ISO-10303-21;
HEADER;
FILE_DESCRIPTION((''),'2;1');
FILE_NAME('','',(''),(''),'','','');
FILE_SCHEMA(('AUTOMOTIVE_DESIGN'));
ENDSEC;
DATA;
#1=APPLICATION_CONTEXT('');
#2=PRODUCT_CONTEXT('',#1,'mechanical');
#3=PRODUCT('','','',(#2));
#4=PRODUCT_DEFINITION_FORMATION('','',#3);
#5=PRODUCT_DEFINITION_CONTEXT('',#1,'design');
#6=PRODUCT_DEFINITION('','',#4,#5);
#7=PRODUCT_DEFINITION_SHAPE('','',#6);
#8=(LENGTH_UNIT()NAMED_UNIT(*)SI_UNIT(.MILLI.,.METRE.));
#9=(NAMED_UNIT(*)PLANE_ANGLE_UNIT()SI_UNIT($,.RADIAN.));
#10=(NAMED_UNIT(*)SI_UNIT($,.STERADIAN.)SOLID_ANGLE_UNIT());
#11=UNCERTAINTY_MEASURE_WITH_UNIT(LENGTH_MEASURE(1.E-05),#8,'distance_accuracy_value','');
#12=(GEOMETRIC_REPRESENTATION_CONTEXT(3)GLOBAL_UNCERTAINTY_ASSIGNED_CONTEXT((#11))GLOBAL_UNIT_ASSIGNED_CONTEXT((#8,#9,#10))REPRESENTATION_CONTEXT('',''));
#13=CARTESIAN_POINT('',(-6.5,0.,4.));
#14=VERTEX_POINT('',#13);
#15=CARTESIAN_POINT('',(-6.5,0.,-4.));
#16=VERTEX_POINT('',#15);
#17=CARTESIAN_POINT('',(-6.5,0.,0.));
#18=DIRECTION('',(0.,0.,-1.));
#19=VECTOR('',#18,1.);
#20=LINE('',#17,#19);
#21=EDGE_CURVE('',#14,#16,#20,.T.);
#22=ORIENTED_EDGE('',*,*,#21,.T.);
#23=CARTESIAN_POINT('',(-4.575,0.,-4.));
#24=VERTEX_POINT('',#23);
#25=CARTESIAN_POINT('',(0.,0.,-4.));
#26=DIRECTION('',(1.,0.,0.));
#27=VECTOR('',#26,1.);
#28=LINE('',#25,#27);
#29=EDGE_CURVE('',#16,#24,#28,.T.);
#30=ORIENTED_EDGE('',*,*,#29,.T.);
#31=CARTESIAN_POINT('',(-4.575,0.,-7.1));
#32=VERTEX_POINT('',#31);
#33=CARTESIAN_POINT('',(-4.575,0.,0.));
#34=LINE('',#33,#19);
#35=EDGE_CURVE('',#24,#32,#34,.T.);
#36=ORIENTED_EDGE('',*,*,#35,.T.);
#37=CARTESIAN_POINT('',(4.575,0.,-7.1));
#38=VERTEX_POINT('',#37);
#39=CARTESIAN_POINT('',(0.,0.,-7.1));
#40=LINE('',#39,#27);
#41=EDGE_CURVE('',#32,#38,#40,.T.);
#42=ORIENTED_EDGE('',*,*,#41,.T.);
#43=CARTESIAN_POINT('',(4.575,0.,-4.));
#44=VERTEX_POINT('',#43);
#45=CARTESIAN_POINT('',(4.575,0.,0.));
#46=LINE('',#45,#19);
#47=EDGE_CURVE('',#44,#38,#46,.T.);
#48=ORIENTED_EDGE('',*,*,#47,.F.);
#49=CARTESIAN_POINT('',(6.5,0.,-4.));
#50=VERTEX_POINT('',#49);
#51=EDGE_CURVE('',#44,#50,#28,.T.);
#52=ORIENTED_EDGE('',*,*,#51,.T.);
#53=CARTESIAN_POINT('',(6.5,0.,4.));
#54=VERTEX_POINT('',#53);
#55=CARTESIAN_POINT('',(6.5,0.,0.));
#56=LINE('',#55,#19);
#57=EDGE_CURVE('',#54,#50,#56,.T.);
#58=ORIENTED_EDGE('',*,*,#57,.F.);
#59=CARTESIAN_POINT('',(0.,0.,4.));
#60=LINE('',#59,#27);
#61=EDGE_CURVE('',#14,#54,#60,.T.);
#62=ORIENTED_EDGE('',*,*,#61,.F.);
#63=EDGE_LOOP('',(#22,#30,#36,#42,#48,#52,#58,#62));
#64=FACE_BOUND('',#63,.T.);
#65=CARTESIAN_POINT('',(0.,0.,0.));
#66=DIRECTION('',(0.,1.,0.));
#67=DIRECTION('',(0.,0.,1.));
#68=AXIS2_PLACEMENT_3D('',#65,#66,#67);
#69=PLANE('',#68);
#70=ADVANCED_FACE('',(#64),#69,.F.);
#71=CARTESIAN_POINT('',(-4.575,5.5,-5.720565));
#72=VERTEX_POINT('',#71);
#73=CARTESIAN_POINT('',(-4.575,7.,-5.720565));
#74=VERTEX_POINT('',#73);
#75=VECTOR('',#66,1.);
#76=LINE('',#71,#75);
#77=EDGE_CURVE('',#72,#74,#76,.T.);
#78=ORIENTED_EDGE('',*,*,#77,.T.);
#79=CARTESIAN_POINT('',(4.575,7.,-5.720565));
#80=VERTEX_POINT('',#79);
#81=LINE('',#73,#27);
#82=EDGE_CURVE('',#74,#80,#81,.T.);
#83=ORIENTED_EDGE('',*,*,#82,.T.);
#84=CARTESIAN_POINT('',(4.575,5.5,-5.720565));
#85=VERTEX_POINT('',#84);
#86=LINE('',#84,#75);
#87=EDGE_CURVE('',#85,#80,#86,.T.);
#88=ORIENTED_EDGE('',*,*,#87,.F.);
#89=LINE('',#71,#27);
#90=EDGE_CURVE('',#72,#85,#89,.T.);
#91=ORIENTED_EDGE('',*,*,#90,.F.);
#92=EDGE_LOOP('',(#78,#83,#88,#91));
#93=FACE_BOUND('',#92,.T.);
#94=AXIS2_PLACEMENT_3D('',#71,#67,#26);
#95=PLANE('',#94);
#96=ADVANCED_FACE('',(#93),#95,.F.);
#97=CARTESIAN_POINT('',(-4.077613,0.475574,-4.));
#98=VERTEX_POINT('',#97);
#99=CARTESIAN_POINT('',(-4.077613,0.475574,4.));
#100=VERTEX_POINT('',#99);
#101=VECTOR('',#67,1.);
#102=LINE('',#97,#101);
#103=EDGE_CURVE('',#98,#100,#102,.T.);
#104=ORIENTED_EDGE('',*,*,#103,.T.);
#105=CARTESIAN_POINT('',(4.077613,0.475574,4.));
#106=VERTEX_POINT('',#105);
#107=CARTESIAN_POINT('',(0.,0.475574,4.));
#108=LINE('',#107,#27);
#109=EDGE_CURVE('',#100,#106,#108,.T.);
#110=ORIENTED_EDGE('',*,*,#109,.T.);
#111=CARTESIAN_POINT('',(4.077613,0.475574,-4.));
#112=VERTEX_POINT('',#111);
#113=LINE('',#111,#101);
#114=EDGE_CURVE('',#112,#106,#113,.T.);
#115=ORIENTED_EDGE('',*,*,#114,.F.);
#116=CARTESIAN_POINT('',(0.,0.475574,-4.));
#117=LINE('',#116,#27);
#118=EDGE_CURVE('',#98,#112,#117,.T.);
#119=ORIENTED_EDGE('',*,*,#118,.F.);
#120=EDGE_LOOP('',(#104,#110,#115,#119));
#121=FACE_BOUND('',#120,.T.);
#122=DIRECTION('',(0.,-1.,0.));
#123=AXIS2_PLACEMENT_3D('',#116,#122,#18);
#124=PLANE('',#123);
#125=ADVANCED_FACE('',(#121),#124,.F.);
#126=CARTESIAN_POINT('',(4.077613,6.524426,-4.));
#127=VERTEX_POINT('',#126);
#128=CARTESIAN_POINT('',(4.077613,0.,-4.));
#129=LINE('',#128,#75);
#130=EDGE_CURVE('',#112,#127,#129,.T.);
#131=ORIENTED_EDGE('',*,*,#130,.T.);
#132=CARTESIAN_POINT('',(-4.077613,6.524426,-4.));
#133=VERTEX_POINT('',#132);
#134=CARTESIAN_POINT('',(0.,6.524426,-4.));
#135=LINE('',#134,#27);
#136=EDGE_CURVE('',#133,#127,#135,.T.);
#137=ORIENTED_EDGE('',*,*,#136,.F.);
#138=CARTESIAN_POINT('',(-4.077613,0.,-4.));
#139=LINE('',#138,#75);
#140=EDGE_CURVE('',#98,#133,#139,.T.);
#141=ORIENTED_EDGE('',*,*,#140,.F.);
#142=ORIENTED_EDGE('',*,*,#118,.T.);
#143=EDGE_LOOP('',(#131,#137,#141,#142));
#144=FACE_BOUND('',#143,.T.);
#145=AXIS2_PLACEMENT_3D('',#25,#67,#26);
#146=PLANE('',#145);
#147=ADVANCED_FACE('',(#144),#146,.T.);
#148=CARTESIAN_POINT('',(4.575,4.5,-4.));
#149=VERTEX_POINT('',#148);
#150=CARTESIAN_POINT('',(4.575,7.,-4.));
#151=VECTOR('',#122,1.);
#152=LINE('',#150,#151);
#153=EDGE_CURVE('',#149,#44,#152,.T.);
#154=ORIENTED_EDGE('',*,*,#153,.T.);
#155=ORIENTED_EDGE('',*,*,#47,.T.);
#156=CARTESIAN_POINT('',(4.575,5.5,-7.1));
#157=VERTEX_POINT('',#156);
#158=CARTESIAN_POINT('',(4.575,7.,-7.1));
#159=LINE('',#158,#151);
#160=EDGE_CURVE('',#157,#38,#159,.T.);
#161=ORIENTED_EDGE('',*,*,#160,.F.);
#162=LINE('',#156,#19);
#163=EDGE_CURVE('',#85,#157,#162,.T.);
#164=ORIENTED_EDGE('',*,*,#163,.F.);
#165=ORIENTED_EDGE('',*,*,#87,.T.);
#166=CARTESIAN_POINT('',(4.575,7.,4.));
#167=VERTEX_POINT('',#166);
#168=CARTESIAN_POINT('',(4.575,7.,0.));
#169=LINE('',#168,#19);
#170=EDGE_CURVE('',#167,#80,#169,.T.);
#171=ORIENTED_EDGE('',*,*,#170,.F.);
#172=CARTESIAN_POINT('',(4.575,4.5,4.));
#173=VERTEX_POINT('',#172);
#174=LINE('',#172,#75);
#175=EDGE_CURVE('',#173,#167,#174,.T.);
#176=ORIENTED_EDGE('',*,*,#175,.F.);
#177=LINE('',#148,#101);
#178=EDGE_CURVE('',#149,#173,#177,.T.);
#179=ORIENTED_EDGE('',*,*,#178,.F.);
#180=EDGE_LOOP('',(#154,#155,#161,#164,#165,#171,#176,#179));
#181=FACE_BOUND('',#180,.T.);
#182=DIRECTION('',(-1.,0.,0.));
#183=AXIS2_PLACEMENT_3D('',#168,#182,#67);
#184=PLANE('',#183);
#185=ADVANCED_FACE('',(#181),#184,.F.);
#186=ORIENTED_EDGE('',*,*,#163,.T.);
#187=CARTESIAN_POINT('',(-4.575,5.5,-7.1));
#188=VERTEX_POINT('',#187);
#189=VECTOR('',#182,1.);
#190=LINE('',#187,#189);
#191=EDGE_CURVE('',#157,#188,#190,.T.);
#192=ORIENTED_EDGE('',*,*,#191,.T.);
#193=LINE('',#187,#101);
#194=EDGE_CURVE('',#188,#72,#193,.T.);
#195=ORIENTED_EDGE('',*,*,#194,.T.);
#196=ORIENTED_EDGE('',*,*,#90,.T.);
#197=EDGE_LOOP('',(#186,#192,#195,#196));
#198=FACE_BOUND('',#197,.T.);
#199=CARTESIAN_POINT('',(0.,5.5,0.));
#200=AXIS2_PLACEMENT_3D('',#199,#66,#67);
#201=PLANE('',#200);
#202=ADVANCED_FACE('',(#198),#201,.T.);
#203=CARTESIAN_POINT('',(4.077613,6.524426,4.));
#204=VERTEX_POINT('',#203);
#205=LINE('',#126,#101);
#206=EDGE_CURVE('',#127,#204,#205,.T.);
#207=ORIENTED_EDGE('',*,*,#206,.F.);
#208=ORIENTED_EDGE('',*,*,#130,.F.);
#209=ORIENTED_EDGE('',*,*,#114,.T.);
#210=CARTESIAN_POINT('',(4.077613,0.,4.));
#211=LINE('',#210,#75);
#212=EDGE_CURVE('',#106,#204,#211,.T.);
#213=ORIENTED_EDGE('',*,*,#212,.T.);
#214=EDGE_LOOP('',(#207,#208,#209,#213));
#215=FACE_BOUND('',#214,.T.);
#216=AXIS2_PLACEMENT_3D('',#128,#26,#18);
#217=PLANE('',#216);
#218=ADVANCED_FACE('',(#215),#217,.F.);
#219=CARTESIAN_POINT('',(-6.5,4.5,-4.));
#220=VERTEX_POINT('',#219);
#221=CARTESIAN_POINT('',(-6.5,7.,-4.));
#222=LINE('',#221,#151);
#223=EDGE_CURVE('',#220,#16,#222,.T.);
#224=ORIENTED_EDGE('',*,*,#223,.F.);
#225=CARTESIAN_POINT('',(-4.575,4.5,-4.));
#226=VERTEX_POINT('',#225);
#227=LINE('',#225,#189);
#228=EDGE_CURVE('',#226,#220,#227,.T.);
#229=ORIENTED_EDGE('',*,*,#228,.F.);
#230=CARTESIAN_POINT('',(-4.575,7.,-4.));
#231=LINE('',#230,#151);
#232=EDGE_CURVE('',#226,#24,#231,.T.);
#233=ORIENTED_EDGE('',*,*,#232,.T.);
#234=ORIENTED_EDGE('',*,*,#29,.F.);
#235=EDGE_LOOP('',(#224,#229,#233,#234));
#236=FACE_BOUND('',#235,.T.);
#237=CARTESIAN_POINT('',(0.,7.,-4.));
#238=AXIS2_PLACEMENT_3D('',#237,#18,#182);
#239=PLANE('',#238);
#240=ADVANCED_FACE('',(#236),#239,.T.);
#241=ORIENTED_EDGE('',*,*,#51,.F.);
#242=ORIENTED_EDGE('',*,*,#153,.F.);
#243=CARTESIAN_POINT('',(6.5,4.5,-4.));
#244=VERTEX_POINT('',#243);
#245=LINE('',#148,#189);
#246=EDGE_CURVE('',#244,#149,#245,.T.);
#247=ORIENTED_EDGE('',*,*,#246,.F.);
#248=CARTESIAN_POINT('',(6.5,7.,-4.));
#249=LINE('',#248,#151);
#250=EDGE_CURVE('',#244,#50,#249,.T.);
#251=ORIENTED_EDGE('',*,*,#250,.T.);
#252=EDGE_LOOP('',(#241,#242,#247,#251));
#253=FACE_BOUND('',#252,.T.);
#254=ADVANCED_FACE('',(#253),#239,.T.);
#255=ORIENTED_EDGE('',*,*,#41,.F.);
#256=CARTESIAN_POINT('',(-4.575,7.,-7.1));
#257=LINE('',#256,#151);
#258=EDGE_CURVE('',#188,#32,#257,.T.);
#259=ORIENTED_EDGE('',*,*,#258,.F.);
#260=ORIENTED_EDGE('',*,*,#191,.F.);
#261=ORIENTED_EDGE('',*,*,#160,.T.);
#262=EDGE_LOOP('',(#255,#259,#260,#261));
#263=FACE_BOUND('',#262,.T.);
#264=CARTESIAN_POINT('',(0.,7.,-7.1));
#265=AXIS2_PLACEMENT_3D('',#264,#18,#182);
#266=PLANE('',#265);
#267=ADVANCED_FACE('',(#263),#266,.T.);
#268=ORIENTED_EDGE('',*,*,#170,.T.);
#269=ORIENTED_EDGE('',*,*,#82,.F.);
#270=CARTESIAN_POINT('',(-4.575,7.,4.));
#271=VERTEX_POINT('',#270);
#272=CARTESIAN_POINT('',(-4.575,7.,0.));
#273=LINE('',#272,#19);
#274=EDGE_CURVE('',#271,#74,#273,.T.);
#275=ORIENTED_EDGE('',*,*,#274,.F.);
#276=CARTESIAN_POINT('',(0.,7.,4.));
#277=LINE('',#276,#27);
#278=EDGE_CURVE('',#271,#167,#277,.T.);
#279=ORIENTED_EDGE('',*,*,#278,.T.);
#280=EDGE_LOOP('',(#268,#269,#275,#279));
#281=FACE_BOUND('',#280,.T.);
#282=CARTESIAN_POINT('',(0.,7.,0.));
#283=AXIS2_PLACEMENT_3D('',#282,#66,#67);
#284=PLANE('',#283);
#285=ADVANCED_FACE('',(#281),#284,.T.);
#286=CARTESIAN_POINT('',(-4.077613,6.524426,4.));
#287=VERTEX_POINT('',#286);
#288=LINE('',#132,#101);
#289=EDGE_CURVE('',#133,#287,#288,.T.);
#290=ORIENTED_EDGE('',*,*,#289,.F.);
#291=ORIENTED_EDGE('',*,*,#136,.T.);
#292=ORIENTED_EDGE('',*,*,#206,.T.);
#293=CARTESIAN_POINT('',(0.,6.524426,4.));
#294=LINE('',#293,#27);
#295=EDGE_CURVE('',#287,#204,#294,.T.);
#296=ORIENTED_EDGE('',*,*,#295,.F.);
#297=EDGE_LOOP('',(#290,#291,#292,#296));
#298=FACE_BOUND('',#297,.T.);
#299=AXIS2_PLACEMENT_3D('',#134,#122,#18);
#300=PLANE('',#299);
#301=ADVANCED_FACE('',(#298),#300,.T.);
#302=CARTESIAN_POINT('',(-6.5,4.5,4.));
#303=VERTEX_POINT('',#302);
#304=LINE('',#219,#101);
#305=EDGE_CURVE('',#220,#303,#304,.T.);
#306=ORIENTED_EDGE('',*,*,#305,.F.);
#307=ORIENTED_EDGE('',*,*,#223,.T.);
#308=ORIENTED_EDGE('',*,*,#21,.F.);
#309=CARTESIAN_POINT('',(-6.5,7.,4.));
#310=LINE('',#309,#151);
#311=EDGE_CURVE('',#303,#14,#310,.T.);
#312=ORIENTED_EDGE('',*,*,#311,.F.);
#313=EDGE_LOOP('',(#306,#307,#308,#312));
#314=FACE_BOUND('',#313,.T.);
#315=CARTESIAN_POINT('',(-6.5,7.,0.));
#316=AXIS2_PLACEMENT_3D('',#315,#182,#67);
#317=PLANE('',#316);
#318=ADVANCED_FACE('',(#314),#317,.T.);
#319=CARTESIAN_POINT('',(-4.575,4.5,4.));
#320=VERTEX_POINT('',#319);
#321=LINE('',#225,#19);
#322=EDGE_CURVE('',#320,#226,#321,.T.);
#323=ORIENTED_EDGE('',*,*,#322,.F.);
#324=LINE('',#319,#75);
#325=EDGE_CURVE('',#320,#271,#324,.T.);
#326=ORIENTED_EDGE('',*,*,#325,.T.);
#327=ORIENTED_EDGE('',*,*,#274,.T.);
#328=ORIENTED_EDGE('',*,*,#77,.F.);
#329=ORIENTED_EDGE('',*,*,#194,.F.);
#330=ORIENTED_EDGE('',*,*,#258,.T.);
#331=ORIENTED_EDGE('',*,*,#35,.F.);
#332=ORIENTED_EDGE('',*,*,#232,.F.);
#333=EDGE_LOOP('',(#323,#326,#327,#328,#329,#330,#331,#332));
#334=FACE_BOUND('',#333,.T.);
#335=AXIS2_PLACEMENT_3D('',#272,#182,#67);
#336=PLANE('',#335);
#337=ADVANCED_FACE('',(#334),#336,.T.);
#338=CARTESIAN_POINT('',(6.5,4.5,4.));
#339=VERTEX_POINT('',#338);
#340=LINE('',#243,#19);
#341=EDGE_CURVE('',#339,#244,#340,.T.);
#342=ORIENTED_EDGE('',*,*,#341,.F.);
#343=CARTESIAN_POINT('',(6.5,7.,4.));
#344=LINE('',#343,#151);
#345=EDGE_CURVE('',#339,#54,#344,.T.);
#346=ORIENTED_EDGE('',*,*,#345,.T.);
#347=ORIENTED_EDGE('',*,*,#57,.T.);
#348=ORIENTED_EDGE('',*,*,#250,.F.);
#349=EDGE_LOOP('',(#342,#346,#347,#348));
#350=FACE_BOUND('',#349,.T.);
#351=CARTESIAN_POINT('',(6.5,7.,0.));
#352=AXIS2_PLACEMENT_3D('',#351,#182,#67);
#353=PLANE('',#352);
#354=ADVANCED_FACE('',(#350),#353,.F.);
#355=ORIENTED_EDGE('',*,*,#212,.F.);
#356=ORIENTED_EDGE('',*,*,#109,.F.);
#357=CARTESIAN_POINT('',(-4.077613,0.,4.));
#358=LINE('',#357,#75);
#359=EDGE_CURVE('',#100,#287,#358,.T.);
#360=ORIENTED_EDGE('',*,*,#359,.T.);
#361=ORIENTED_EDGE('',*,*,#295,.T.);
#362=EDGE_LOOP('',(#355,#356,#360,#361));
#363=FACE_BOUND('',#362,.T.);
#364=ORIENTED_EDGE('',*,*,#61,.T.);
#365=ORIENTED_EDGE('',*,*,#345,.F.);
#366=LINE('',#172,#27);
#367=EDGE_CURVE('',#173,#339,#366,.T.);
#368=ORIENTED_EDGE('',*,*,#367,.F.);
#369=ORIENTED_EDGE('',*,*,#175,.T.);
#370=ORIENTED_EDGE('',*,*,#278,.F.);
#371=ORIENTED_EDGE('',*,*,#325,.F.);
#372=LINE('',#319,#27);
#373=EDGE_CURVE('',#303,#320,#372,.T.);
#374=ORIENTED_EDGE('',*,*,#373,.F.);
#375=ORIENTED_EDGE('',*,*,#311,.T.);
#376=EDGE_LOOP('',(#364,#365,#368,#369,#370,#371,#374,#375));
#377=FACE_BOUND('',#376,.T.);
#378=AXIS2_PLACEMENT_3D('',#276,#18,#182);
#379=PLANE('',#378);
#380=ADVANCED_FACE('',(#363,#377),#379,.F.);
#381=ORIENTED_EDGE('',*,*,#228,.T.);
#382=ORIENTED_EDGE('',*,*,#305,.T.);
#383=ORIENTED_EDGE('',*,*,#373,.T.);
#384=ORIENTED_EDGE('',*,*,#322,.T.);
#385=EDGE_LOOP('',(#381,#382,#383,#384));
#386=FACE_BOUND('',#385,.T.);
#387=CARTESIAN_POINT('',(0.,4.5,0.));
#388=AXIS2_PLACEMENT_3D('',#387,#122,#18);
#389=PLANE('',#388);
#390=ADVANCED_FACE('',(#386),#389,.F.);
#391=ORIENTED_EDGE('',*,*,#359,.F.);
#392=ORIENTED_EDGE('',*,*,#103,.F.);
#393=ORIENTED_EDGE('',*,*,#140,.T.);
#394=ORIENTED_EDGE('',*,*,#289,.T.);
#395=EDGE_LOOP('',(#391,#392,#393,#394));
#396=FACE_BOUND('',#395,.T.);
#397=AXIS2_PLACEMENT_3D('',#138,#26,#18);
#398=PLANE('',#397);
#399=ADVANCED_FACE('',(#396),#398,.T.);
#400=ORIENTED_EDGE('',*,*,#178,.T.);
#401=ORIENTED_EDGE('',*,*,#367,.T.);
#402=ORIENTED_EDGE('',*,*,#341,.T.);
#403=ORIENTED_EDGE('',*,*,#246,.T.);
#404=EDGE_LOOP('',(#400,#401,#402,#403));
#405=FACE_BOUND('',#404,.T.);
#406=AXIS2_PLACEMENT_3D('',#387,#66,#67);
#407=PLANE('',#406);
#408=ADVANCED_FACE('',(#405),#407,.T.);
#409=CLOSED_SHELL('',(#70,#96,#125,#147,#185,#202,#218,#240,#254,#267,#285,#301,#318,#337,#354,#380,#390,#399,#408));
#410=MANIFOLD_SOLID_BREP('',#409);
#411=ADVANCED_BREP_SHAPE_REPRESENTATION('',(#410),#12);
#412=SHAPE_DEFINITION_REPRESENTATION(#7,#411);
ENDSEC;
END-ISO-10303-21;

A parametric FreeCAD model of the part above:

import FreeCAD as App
import Part
import Sketcher
Q = App.Units.Quantity


def add_polygon(sketch, points):
    """Adds a closed chain of lines whose ends are joined by coincident constraints."""
    first, n = sketch.GeometryCount, len(points)
    for a, b in zip(points, points[1:] + points[:1]):
        sketch.addGeometry(Part.LineSegment(App.Vector(*a, 0), App.Vector(*b, 0)), False)
    for i in range(n):
        sketch.addConstraint(Sketcher.Constraint("Coincident", first + i, 2, first + (i + 1) % n, 1))

doc = App.newDocument("Part")
body = doc.addObject("PartDesign::Body", "Body")

# Sketch on XZ plane
sketch1 = body.newObject("Sketcher::SketchObject", "Sketch")
sketch1.AttachmentSupport = (doc.getObject("XZ_Plane"), [""])
sketch1.MapMode = "FlatFace"
add_polygon(sketch1, [(-4.6, -7.1), (-4.6, -4), (-6.5, -4), (-6.5, 4), (6.5, 4), (6.5, -4), (4.6, -4), (4.6, -7.1)])  # lines 0-7
sketch1.addConstraint([
    Sketcher.Constraint("Vertical", 0),
    Sketcher.Constraint("Horizontal", 1),
    Sketcher.Constraint("Vertical", 2),
    Sketcher.Constraint("Horizontal", 3),
    Sketcher.Constraint("Vertical", 4),
    Sketcher.Constraint("Horizontal", 5),
    Sketcher.Constraint("Vertical", 6),
    Sketcher.Constraint("Horizontal", 7),
    Sketcher.Constraint("Symmetric", 1, 2, 3, 2, -1, 1),
    Sketcher.Constraint("Symmetric", 0, 2, 5, 2, -2),
    Sketcher.Constraint("DistanceX", 3, 1, 3, 2, Q("13 mm")),
    Sketcher.Constraint("DistanceY", 2, 1, 2, 2, Q("8 mm")),
    Sketcher.Constraint("DistanceY", 0, 1, 0, 2, Q("3.1 mm")),
    Sketcher.Constraint("DistanceX", 7, 2, 7, 1, Q("9.15 mm")),
])
pad1 = body.newObject("PartDesign::Pad", "Pad")
pad1.Profile = sketch1
pad1.Length = 7
pad1.Reversed = True

# Sketch on XZ plane
sketch2 = body.newObject("Sketcher::SketchObject", "Sketch001")
sketch2.AttachmentSupport = (doc.getObject("XZ_Plane"), [""])
sketch2.MapMode = "FlatFace"
sketch2.AttachmentOffset = App.Placement(App.Vector(0, 0, -7), App.Rotation())
add_polygon(sketch2, [(-6.5, -4), (-6.5, 4), (-4.6, 4), (-4.6, -4)])  # lines 0-3
add_polygon(sketch2, [(4.6, -4), (4.6, 4), (6.5, 4), (6.5, -4)])  # lines 4-7
sketch2.addConstraint([
    Sketcher.Constraint("Vertical", 0),
    Sketcher.Constraint("Horizontal", 1),
    Sketcher.Constraint("Vertical", 2),
    Sketcher.Constraint("Horizontal", 3),
    Sketcher.Constraint("Vertical", 4),
    Sketcher.Constraint("Horizontal", 5),
    Sketcher.Constraint("Vertical", 6),
    Sketcher.Constraint("Horizontal", 7),
    Sketcher.Constraint("Symmetric", 2, 2, 4, 2, -1, 1),
    Sketcher.Constraint("Symmetric", 0, 2, 6, 2, -1, 1),
    Sketcher.Constraint("Horizontal", 1, 2, 4, 2),
    Sketcher.Constraint("DistanceY", 0, 1, 0, 2, Q("8 mm")),
    Sketcher.Constraint("DistanceX", 0, 2, 5, 2, Q("13 mm")),
    Sketcher.Constraint("DistanceX", 1, 1, 1, 2, Q("1.925 mm")),
])
pocket1 = body.newObject("PartDesign::Pocket", "Pocket")
pocket1.Profile = sketch2
pocket1.Length = 2.5
pocket1.Reversed = True

# Sketch on XZ plane
sketch3 = body.newObject("Sketcher::SketchObject", "Sketch002")
sketch3.AttachmentSupport = (doc.getObject("XZ_Plane"), [""])
sketch3.MapMode = "FlatFace"
sketch3.AttachmentOffset = App.Placement(App.Vector(0, 0, -7), App.Rotation())
add_polygon(sketch3, [(-4.6, -7.1), (-4.6, -5.7), (4.6, -5.7), (4.6, -7.1)])  # lines 0-3
sketch3.addConstraint([
    Sketcher.Constraint("Vertical", 0),
    Sketcher.Constraint("Horizontal", 1),
    Sketcher.Constraint("Vertical", 2),
    Sketcher.Constraint("Horizontal", 3),
    Sketcher.Constraint("DistanceX", 1, 1, 1, 2, Q("9.15 mm")),
    Sketcher.Constraint("DistanceY", 2, 2, -1, 1, Q("7.1 mm")),
    Sketcher.Constraint("DistanceX", 0, 2, -1, 1, Q("4.575 mm")),
    Sketcher.Constraint("DistanceY", 0, 1, 0, 2, Q("1.379435 mm")),
])
pocket2 = body.newObject("PartDesign::Pocket", "Pocket001")
pocket2.Profile = sketch3
pocket2.Length = 1.5
pocket2.Reversed = True

# Sketch on XY plane
sketch4 = body.newObject("Sketcher::SketchObject", "Sketch003")
sketch4.AttachmentSupport = (doc.getObject("XY_Plane"), [""])
sketch4.MapMode = "FlatFace"
sketch4.AttachmentOffset = App.Placement(App.Vector(0, 0, 4), App.Rotation())
add_polygon(sketch4, [(-4, 7), (-4, 0), (4, 0), (4, 7)])  # lines 0-3
sketch4.addConstraint([
    Sketcher.Constraint("Vertical", 0),
    Sketcher.Constraint("Horizontal", 1),
    Sketcher.Constraint("Vertical", 2),
    Sketcher.Constraint("Horizontal", 3),
    Sketcher.Constraint("DistanceY", 0, 2, 0, 1, Q("6.048851 mm")),
    Sketcher.Constraint("DistanceX", 1, 1, 1, 2, Q("8.155226 mm")),
    Sketcher.Constraint("DistanceX", 0, 2, -1, 1, Q("4.077613 mm")),
    Sketcher.Constraint("DistanceY", -1, 1, 0, 2, Q("0.475574 mm")),
])
pocket3 = body.newObject("PartDesign::Pocket", "Pocket002")
pocket3.Profile = sketch4
pocket3.Length = 8

doc.recompute()
